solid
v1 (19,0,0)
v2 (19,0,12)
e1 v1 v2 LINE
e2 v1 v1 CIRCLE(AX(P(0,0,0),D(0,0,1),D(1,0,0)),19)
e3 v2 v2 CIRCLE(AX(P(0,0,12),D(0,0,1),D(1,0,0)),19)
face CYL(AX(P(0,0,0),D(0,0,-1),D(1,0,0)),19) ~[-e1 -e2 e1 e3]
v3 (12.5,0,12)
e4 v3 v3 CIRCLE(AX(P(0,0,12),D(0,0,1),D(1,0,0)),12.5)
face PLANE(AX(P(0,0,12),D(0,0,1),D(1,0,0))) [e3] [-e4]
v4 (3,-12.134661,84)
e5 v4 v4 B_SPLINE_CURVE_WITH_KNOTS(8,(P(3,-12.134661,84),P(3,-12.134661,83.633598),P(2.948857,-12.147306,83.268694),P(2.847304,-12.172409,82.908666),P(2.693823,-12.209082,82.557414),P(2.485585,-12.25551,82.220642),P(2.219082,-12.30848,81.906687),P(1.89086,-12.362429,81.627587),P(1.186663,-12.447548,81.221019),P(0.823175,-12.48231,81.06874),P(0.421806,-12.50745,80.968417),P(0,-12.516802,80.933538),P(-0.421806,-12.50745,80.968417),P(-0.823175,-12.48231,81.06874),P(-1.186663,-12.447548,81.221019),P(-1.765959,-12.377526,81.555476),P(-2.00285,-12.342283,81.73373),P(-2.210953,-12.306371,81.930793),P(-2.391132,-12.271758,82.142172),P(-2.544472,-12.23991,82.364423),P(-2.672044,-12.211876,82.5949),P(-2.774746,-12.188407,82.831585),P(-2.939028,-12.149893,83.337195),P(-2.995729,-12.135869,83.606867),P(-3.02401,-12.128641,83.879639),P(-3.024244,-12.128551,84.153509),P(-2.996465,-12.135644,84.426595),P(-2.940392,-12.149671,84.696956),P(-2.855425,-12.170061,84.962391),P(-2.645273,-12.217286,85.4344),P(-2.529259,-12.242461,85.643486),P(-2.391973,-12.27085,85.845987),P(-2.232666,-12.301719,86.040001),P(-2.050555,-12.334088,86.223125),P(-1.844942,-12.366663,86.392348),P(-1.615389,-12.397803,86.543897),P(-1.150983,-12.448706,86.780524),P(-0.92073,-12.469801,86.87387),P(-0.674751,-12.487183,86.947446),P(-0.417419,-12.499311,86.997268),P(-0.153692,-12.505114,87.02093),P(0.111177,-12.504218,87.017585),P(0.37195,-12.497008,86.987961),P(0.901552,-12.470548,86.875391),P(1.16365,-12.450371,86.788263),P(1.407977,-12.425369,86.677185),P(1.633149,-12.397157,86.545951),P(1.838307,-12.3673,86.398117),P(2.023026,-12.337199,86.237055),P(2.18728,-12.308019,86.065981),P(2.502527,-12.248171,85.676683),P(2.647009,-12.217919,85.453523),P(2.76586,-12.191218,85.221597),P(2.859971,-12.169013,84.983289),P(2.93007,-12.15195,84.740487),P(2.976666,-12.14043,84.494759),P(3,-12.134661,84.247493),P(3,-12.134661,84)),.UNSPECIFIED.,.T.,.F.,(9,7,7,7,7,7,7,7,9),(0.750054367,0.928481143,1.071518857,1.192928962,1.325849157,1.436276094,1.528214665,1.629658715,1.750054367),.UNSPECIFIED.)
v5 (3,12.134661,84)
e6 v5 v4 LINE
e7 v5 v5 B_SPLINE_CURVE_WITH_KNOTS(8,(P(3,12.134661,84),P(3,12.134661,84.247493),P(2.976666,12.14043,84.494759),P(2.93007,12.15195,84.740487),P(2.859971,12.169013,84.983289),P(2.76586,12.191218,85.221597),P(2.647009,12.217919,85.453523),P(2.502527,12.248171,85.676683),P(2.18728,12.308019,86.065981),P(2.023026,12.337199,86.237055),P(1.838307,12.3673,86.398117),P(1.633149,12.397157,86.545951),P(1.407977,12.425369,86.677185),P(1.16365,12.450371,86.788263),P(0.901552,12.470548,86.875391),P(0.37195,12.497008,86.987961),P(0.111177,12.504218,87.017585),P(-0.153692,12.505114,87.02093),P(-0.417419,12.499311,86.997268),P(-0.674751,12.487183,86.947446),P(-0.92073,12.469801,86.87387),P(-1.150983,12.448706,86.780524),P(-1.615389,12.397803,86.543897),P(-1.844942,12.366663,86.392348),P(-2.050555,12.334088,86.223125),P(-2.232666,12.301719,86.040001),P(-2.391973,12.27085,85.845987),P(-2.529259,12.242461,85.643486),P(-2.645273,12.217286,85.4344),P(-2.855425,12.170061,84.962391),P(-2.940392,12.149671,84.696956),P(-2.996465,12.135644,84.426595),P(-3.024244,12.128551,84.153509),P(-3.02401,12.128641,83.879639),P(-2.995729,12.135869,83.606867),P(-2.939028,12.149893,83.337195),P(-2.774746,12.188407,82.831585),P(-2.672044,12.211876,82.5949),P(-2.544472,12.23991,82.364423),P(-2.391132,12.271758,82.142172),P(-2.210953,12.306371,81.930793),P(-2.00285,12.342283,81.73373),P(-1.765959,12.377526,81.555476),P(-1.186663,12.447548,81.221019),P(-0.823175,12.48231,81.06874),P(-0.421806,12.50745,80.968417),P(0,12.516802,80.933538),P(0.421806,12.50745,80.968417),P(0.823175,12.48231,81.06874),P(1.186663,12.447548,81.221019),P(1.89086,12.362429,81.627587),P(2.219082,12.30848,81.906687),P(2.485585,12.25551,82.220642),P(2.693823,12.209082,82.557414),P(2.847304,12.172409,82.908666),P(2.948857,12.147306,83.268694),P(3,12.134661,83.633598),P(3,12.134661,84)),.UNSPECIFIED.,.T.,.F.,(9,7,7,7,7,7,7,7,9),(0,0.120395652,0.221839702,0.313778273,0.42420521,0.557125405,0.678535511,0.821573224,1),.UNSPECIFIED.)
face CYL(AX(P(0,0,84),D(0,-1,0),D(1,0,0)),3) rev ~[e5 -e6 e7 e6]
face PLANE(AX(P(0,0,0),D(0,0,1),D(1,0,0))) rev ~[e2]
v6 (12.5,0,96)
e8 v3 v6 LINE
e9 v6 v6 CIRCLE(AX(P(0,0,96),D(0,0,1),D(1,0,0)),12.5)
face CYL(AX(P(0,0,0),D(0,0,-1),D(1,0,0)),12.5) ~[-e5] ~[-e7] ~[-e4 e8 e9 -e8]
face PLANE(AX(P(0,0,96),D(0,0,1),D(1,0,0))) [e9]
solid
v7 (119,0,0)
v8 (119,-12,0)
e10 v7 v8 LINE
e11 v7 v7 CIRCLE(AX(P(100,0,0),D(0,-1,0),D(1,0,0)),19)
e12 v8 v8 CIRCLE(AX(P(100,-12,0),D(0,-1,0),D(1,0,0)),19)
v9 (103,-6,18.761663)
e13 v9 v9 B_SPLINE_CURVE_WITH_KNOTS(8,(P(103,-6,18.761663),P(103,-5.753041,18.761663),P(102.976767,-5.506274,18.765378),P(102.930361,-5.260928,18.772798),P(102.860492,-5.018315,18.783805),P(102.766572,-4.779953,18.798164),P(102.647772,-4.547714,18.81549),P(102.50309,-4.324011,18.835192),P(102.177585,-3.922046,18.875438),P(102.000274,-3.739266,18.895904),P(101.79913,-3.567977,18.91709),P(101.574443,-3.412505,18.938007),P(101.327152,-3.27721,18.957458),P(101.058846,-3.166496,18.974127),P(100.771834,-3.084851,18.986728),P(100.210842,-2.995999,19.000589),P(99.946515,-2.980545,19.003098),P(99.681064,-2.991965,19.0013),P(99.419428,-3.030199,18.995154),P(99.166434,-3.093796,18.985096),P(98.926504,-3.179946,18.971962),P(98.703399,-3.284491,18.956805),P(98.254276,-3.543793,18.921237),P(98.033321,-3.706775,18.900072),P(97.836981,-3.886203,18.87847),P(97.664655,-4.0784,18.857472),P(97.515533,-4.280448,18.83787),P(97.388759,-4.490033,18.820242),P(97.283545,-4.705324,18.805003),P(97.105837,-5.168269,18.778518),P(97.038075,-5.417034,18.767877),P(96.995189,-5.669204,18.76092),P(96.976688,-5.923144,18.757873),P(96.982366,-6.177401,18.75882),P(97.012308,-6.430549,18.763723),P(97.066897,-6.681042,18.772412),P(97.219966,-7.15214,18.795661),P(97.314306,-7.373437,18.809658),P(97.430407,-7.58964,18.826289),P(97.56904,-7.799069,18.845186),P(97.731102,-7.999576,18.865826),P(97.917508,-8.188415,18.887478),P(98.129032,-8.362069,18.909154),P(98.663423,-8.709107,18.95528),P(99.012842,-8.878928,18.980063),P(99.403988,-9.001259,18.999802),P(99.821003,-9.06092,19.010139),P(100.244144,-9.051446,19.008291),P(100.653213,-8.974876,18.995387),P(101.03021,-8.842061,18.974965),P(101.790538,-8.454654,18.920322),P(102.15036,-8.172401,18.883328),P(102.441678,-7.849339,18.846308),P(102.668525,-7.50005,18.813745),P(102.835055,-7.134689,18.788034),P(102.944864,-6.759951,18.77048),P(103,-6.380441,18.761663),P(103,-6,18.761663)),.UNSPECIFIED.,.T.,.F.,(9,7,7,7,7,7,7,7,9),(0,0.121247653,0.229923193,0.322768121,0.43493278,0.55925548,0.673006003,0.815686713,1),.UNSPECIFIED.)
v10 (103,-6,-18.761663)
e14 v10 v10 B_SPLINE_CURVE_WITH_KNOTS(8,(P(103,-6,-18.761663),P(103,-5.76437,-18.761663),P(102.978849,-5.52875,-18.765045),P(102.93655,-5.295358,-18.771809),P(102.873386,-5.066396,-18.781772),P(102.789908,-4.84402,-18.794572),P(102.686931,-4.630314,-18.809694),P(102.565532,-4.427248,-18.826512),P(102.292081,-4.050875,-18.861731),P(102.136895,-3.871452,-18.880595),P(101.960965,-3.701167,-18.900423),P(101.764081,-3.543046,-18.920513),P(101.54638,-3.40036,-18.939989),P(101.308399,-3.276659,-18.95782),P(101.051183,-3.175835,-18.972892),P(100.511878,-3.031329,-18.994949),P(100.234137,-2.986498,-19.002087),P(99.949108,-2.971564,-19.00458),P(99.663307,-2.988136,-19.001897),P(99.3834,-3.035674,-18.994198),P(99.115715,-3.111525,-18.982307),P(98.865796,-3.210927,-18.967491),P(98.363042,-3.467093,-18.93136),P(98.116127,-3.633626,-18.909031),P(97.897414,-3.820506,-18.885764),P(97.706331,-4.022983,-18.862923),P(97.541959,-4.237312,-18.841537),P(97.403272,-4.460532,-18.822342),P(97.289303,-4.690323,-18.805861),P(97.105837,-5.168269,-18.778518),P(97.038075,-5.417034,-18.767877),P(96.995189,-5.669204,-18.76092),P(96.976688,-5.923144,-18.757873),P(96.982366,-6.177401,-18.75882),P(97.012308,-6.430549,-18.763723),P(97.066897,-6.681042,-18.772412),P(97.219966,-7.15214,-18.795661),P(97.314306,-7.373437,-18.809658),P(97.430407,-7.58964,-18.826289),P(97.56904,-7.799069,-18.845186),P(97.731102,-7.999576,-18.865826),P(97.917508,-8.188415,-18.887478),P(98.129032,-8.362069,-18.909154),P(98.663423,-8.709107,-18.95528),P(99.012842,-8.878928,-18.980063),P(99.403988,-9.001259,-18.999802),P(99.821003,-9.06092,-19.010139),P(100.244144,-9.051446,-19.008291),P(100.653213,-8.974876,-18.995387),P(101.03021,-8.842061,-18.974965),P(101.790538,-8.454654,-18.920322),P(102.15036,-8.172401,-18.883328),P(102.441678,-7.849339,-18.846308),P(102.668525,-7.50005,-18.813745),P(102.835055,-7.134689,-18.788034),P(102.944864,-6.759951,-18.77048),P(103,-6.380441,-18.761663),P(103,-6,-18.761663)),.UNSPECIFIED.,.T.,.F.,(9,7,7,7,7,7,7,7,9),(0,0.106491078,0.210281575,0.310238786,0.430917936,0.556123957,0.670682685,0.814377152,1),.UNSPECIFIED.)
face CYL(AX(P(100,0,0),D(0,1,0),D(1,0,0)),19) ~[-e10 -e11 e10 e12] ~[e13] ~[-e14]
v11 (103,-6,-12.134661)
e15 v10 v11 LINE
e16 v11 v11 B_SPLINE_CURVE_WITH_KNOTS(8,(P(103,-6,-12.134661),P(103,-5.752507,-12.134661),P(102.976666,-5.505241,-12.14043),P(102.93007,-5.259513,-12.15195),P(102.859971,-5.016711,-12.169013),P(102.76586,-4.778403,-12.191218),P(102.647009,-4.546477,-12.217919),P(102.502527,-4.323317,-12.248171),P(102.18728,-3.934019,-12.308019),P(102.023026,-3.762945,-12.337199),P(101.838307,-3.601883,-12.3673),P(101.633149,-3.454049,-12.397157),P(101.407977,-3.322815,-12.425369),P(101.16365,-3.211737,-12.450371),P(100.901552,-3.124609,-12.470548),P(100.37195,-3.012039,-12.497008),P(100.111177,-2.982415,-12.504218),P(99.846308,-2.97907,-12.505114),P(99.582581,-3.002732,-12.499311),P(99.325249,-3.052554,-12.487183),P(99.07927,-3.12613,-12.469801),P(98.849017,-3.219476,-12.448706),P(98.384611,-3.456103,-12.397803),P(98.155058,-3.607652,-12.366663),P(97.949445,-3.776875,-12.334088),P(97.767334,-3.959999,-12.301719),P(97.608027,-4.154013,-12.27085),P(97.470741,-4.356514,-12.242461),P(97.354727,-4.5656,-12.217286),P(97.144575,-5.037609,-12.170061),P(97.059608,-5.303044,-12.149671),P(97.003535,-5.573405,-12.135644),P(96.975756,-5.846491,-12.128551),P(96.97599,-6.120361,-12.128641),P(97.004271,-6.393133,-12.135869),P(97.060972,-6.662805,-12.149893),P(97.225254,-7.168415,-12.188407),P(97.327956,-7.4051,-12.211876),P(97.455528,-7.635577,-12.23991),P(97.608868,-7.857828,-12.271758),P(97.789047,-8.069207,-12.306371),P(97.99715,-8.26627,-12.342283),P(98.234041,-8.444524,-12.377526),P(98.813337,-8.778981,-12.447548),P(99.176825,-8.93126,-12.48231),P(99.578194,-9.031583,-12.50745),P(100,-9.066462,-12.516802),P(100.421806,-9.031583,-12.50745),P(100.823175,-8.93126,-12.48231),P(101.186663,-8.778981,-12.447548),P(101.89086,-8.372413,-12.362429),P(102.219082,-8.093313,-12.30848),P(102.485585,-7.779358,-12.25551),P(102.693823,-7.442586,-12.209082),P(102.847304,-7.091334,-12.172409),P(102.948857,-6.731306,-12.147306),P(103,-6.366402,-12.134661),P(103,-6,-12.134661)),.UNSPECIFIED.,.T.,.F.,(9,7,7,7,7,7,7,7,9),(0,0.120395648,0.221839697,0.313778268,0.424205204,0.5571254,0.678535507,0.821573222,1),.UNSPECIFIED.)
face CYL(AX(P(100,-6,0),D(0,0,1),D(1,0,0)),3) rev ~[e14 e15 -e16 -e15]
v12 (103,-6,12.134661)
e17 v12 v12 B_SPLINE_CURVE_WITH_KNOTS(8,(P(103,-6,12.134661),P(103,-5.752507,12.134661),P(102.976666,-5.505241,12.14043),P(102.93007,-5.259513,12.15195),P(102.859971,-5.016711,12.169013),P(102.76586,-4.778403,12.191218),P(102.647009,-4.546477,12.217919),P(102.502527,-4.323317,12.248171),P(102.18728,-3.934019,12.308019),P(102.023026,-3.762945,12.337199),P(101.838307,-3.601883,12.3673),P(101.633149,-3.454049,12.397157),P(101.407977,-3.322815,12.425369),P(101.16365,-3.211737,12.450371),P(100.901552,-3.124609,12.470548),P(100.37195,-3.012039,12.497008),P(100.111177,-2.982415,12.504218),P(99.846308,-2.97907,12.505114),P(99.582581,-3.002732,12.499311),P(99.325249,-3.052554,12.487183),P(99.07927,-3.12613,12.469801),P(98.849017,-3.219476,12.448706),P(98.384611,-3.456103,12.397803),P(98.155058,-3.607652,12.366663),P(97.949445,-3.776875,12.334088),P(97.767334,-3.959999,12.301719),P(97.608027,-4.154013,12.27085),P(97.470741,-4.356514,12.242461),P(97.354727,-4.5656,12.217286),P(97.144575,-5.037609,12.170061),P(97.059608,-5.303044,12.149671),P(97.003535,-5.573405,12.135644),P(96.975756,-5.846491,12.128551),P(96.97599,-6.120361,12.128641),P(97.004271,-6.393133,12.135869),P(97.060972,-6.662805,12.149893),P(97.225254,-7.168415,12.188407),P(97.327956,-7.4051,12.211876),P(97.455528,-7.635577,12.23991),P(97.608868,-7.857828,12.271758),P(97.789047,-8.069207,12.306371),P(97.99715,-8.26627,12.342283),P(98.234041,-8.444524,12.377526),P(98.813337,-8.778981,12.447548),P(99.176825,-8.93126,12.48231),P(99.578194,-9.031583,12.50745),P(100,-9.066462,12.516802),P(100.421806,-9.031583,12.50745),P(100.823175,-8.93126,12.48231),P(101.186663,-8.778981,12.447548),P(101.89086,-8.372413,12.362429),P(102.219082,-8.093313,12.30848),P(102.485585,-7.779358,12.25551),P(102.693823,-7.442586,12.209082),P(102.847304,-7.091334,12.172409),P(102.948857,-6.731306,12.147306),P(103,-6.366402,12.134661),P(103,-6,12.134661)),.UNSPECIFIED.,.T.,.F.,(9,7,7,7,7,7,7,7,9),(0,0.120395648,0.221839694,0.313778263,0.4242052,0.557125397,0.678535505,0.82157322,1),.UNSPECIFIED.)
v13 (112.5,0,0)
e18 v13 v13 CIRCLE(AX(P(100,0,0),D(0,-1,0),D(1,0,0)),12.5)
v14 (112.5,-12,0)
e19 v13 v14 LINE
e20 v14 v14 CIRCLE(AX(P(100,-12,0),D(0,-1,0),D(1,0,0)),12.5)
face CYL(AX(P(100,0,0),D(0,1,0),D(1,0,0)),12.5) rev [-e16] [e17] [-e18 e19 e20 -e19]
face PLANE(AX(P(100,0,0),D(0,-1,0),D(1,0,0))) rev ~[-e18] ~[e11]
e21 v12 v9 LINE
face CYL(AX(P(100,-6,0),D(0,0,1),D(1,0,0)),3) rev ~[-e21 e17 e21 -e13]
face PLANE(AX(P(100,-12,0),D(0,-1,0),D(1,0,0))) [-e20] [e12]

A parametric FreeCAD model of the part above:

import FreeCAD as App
import Part
import Sketcher
Q = App.Units.Quantity

doc = App.newDocument("Part")
body = doc.addObject("PartDesign::Body", "Body")

# Sketch on XY plane
sketch1 = body.newObject("Sketcher::SketchObject", "Sketch")
sketch1.AttachmentSupport = (doc.getObject("XY_Plane"), [""])
sketch1.MapMode = "FlatFace"
sketch1.addGeometry(Part.Circle(App.Vector(0, 0, 0), App.Vector(0, 0, 1), 12), False)
sketch1.addConstraint([
    Sketcher.Constraint("Coincident", 0, 3, -1, 1),
    Sketcher.Constraint("Diameter", 0, Q("25 mm")),
])
pad1 = body.newObject("PartDesign::Pad", "Pad")
pad1.Profile = sketch1
pad1.Length = 96

# Sketch on XY plane
sketch2 = body.newObject("Sketcher::SketchObject", "Sketch001")
sketch2.AttachmentSupport = (doc.getObject("XY_Plane"), [""])
sketch2.MapMode = "FlatFace"
sketch2.addGeometry([
    Part.Circle(App.Vector(0, 0, 0), App.Vector(0, 0, 1), 19),
    Part.Circle(App.Vector(0, 0, 0), App.Vector(0, 0, 1), 12),
], False)
sketch2.addConstraint([
    Sketcher.Constraint("Coincident", 0, 3, -1, 1),
    Sketcher.Constraint("Coincident", 1, 3, -1, 1),
    Sketcher.Constraint("Diameter", 0, Q("38 mm")),
    Sketcher.Constraint("Diameter", 1, Q("25 mm")),
])
pad2 = body.newObject("PartDesign::Pad", "Pad001")
pad2.Profile = sketch2
pad2.Length = 12

# Sketch on XZ plane
sketch3 = body.newObject("Sketcher::SketchObject", "Sketch002")
sketch3.AttachmentSupport = (doc.getObject("XZ_Plane"), [""])
sketch3.MapMode = "FlatFace"
sketch3.addGeometry(Part.Circle(App.Vector(0, 84, 0), App.Vector(0, 0, 1), 3), False)
sketch3.addConstraint([
    Sketcher.Constraint("PointOnObject", 0, 3, -2),
    Sketcher.Constraint("Diameter", 0, Q("6 mm")),
    Sketcher.Constraint("DistanceY", -1, 1, 0, 3, Q("84 mm")),
])
pocket1 = body.newObject("PartDesign::Pocket", "Pocket")
pocket1.Profile = sketch3
pocket1.Length = 25
pocket1.Midplane = True
body2 = doc.addObject("PartDesign::Body", "Body001")

# Sketch on XZ plane
sketch4 = body2.newObject("Sketcher::SketchObject", "Sketch003")
sketch4.AttachmentSupport = (doc.getObject("XZ_Plane001"), [""])
sketch4.MapMode = "FlatFace"
sketch4.addGeometry([
    Part.Circle(App.Vector(100, 0, 0), App.Vector(0, 0, 1), 19),
    Part.Circle(App.Vector(100, 0, 0), App.Vector(0, 0, 1), 12),
], False)
sketch4.addConstraint([
    Sketcher.Constraint("Coincident", 1, 3, 0, 3),
    Sketcher.Constraint("PointOnObject", 0, 3, -1),
    Sketcher.Constraint("Diameter", 0, Q("38 mm")),
    Sketcher.Constraint("Diameter", 1, Q("25 mm")),
    Sketcher.Constraint("DistanceX", -1, 1, 0, 3, Q("100 mm")),
])
pad3 = body2.newObject("PartDesign::Pad", "Pad002")
pad3.Profile = sketch4
pad3.Length = 12

# Sketch on XY plane
sketch5 = body2.newObject("Sketcher::SketchObject", "Sketch004")
sketch5.AttachmentSupport = (doc.getObject("XY_Plane001"), [""])
sketch5.MapMode = "FlatFace"
sketch5.addGeometry(Part.Circle(App.Vector(100, -6, 0), App.Vector(0, 0, 1), 3), False)
sketch5.addConstraint([
    Sketcher.Constraint("Diameter", 0, Q("6 mm")),
    Sketcher.Constraint("DistanceX", -1, 1, 0, 3, Q("100 mm")),
    Sketcher.Constraint("DistanceY", 0, 3, -1, 1, Q("6 mm")),
])
pocket2 = body2.newObject("PartDesign::Pocket", "Pocket001")
pocket2.Profile = sketch5
pocket2.Length = 72.4
pocket2.Midplane = True

doc.recompute()
